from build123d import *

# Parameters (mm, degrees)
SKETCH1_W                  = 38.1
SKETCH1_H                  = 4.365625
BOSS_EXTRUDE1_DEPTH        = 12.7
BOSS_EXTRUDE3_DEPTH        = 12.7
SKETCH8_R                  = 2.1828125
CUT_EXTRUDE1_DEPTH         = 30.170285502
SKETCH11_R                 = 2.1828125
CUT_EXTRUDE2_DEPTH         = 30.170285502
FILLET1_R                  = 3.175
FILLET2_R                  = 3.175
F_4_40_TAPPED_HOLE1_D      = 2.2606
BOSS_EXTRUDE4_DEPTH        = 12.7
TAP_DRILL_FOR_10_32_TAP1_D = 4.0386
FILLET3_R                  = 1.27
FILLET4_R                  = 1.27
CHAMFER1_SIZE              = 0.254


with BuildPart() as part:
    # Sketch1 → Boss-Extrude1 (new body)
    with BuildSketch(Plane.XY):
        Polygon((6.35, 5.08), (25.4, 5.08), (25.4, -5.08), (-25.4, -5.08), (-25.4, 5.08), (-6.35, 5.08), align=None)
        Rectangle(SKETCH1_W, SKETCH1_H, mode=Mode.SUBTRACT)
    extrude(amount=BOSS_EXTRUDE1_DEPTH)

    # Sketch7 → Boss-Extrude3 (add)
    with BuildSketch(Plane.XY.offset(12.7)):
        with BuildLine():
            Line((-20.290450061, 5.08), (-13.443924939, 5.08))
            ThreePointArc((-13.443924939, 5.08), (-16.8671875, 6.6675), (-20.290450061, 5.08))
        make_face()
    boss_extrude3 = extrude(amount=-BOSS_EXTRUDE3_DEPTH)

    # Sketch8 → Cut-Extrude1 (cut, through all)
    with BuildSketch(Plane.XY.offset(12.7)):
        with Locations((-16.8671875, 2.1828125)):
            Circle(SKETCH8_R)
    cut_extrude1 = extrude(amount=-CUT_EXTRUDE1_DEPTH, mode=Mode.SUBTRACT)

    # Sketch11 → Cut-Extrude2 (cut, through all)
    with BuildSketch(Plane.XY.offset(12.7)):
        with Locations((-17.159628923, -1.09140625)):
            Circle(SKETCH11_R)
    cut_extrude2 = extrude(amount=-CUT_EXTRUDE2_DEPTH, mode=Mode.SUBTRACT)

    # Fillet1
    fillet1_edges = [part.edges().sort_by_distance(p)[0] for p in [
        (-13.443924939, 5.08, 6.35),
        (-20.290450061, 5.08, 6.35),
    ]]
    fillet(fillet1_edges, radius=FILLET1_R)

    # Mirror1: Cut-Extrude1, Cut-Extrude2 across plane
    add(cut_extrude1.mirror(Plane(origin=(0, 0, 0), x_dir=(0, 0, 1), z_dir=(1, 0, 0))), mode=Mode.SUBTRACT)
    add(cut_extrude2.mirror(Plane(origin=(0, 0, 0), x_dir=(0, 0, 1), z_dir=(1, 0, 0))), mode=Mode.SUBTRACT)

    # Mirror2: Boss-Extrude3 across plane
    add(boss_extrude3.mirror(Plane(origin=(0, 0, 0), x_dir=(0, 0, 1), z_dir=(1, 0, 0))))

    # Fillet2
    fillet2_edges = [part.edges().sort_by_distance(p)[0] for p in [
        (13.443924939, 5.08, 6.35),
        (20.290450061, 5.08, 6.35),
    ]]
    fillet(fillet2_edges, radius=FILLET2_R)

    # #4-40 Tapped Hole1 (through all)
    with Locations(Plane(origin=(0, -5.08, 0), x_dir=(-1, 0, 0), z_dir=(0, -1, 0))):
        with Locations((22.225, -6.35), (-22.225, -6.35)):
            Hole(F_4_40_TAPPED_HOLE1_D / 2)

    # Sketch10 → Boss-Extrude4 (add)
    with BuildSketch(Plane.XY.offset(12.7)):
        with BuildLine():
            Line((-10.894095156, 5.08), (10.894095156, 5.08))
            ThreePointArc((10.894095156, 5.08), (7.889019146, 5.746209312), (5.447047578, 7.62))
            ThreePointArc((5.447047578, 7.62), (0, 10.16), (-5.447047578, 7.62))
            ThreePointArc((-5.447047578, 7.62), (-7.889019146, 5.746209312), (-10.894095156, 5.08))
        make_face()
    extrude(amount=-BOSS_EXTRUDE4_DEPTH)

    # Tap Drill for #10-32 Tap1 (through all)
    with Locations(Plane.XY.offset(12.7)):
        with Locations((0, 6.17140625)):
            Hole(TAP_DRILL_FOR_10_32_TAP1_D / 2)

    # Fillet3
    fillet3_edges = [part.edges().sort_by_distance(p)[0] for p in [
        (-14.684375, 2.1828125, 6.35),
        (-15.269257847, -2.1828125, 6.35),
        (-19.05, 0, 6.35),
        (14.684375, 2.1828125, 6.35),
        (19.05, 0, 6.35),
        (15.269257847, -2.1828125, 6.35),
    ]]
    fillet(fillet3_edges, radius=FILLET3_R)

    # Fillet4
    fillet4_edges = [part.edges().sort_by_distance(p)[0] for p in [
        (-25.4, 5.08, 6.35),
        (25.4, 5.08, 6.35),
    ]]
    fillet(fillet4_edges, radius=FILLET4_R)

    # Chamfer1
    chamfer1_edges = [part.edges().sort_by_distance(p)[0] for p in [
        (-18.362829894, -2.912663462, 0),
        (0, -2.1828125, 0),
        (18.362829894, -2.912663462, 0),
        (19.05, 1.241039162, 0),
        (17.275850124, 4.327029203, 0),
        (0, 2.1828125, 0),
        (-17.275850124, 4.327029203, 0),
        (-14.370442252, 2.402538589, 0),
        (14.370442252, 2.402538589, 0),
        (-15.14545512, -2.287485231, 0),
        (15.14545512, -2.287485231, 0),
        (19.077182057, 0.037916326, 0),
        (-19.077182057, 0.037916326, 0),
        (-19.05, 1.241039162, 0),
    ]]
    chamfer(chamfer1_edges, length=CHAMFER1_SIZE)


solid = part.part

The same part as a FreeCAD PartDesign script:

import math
import FreeCAD as App
import Part
import Sketcher
from FreeCAD import Vector
Q = App.Units.Quantity


def edges_at(feature, points):
    """Names of the edges that pass closest to the given points."""
    edges = feature.Shape.Edges
    near = lambda p: min(range(len(edges)), key=lambda i: edges[i].distToShape(Part.Vertex(*p))[0])
    return sorted({f"Edge{near(p) + 1}" for p in points})

doc = App.newDocument("Part")
body = doc.addObject("PartDesign::Body", "Body")

# Sketch on XY plane
sketch1 = body.newObject("Sketcher::SketchObject", "Sketch")
sketch1.AttachmentSupport = (doc.getObject("XY_Plane"), [""])
sketch1.MapMode = "FlatFace"
sketch1.addGeometry(Part.LineSegment(Vector(25.4, 5.08, 0), Vector(-25.4, 5.08, 0)), False)
sketch1.addGeometry(Part.LineSegment(Vector(-25.4, 5.08, 0), Vector(-25.4, -5.08, 0)), False)
sketch1.addGeometry(Part.LineSegment(Vector(-25.4, -5.08, 0), Vector(25.4, -5.08, 0)), False)
sketch1.addGeometry(Part.LineSegment(Vector(25.4, -5.08, 0), Vector(25.4, 5.08, 0)), False)
sketch1.addGeometry(Part.LineSegment(Vector(-19.05, -2.182812, 0), Vector(-19.05, 2.182812, 0)), False)
sketch1.addGeometry(Part.LineSegment(Vector(-19.05, 2.182812, 0), Vector(19.05, 2.182812, 0)), False)
sketch1.addGeometry(Part.LineSegment(Vector(19.05, 2.182812, 0), Vector(19.05, -2.182812, 0)), False)
sketch1.addGeometry(Part.LineSegment(Vector(19.05, -2.182812, 0), Vector(-19.05, -2.182812, 0)), False)
sketch1.addConstraint(Sketcher.Constraint("Coincident", 0, 2, 1, 1))
sketch1.addConstraint(Sketcher.Constraint("Coincident", 1, 2, 2, 1))
sketch1.addConstraint(Sketcher.Constraint("Coincident", 2, 2, 3, 1))
sketch1.addConstraint(Sketcher.Constraint("Coincident", 3, 2, 0, 1))
sketch1.addConstraint(Sketcher.Constraint("Coincident", 4, 2, 5, 1))
sketch1.addConstraint(Sketcher.Constraint("Coincident", 5, 2, 6, 1))
sketch1.addConstraint(Sketcher.Constraint("Coincident", 6, 2, 7, 1))
sketch1.addConstraint(Sketcher.Constraint("Coincident", 7, 2, 4, 1))
sketch1.addConstraint(Sketcher.Constraint("Horizontal", 0))
sketch1.addConstraint(Sketcher.Constraint("Vertical", 1))
sketch1.addConstraint(Sketcher.Constraint("Horizontal", 2))
sketch1.addConstraint(Sketcher.Constraint("Vertical", 3))
sketch1.addConstraint(Sketcher.Constraint("Vertical", 4))
sketch1.addConstraint(Sketcher.Constraint("Horizontal", 5))
sketch1.addConstraint(Sketcher.Constraint("Vertical", 6))
sketch1.addConstraint(Sketcher.Constraint("Horizontal", 7))
sketch1.addConstraint(Sketcher.Constraint("Symmetric", 0, 2, 2, 2, -1, 1))
sketch1.addConstraint(Sketcher.Constraint("Symmetric", 4, 2, 6, 2, -1, 1))
sketch1.addConstraint(Sketcher.Constraint("DistanceX", 0, 2, 0, 1, Q("2 in")))
sketch1.addConstraint(Sketcher.Constraint("DistanceX", 5, 1, 5, 2, Q("1.5 in")))
sketch1.addConstraint(Sketcher.Constraint("DistanceY", 1, 2, 1, 1, Q("0.4 in")))
sketch1.addConstraint(Sketcher.Constraint("DistanceY", 4, 1, 4, 2, Q("0.171875 in")))
pad1 = body.newObject("PartDesign::Pad", "Pad")
pad1.Profile = sketch1
pad1.Length = Q("0.5 in")

# Sketch on XY plane
sketch2 = body.newObject("Sketcher::SketchObject", "Sketch001")
sketch2.AttachmentSupport = (doc.getObject("XY_Plane"), [""])
sketch2.MapMode = "FlatFace"
sketch2.AttachmentOffset = App.Placement(Vector(0, 0, 0.5 * 25.4), App.Rotation())
sketch2.addGeometry(Part.LineSegment(Vector(-20.29045, 5.08, 0), Vector(-13.443925, 5.08, 0)), False)
sketch2.addGeometry(Part.ArcOfCircle(Part.Circle(Vector(-16.867188, 2.182812, 0), Vector(0, 0, 1), 4.484687), math.radians(40.242022), math.radians(139.757978)), False)
sketch2.addConstraint(Sketcher.Constraint("Coincident", 0, 1, 1, 2))
sketch2.addConstraint(Sketcher.Constraint("Coincident", 1, 1, 0, 2))
sketch2.addConstraint(Sketcher.Constraint("Horizontal", 0))
sketch2.addConstraint(Sketcher.Constraint("DistanceY", -1, 1, 0, 1, Q("0.2 in")))
sketch2.addConstraint(Sketcher.Constraint("Radius", 1, Q("4.484687 mm")))
sketch2.addConstraint(Sketcher.Constraint("DistanceX", 0, 1, 0, 2, Q("6.846525 mm")))
sketch2.addConstraint(Sketcher.Constraint("DistanceX", 0, 1, -1, 1, Q("20.29045 mm")))
pad2 = body.newObject("PartDesign::Pad", "Pad001")
pad2.Profile = sketch2
pad2.Length = Q("0.5 in")
pad2.Reversed = True

# Sketch on XY plane
sketch3 = body.newObject("Sketcher::SketchObject", "Sketch002")
sketch3.AttachmentSupport = (doc.getObject("XY_Plane"), [""])
sketch3.MapMode = "FlatFace"
sketch3.AttachmentOffset = App.Placement(Vector(0, 0, 0.5 * 25.4), App.Rotation())
sketch3.addGeometry(Part.Circle(Vector(-16.867188, 2.182812, 0), Vector(0, 0, 1), 2.182812), False)
sketch3.addConstraint(Sketcher.Constraint("Diameter", 0, Q("0.171875 in")))
sketch3.addConstraint(Sketcher.Constraint("DistanceX", 0, 3, -1, 1, Q("16.867188 mm")))
sketch3.addConstraint(Sketcher.Constraint("DistanceY", -1, 1, 0, 3, Q("2.182812 mm")))
pocket1 = body.newObject("PartDesign::Pocket", "Pocket")
pocket1.Profile = sketch3
pocket1.Type = "ThroughAll"

# Sketch on XY plane
sketch4 = body.newObject("Sketcher::SketchObject", "Sketch003")
sketch4.AttachmentSupport = (doc.getObject("XY_Plane"), [""])
sketch4.MapMode = "FlatFace"
sketch4.AttachmentOffset = App.Placement(Vector(0, 0, 0.5 * 25.4), App.Rotation())
sketch4.addGeometry(Part.Circle(Vector(-17.159629, -1.091406, 0), Vector(0, 0, 1), 2.182812), False)
sketch4.addConstraint(Sketcher.Constraint("Diameter", 0, Q("0.171875 in")))
sketch4.addConstraint(Sketcher.Constraint("DistanceX", 0, 3, -1, 1, Q("17.159629 mm")))
sketch4.addConstraint(Sketcher.Constraint("DistanceY", 0, 3, -1, 1, Q("1.091406 mm")))
pocket2 = body.newObject("PartDesign::Pocket", "Pocket001")
pocket2.Profile = sketch4
pocket2.Type = "ThroughAll"
doc.recompute()

fillet = body.newObject("PartDesign::Fillet", "Fillet")
fillet.Base = (pocket2, edges_at(pocket2, [(-13.444, 5.08, 6.35), (-20.29, 5.08, 6.35)]))
fillet.Radius = Q("0.125 in")
doc.recompute()

mirrored = body.newObject("PartDesign::Mirrored", "Mirrored")
mirrored.Originals = [pocket1, pocket2]
mirrored.MirrorPlane = (doc.getObject("YZ_Plane"), [""])
body.Tip = mirrored
doc.recompute()

mirrored2 = body.newObject("PartDesign::Mirrored", "Mirrored001")
mirrored2.Originals = [pad2]
mirrored2.MirrorPlane = (doc.getObject("YZ_Plane"), [""])
body.Tip = mirrored2
doc.recompute()

fillet2 = body.newObject("PartDesign::Fillet", "Fillet001")
fillet2.Base = (mirrored2, edges_at(mirrored2, [(13.444, 5.08, 6.35), (20.29, 5.08, 6.35)]))
fillet2.Radius = Q("0.125 in")

# Sketch on XZ plane
sketch5 = body.newObject("Sketcher::SketchObject", "Sketch004")
sketch5.AttachmentSupport = (doc.getObject("XZ_Plane"), [""])
sketch5.MapMode = "FlatFace"
sketch5.AttachmentOffset = App.Placement(Vector(0, 0, 0.2 * 25.4), App.Rotation())
sketch5.addGeometry(Part.Circle(Vector(-22.225, 6.35, 0), Vector(0, 0, 1), 1.1303), False)
sketch5.addGeometry(Part.Circle(Vector(22.225, 6.35, 0), Vector(0, 0, 1), 1.1303), False)
sketch5.addConstraint(Sketcher.Constraint("Equal", 0, 1))
sketch5.addConstraint(Sketcher.Constraint("Symmetric", 0, 3, 1, 3, -2))
sketch5.addConstraint(Sketcher.Constraint("Diameter", 0, Q("0.089 in")))
sketch5.addConstraint(Sketcher.Constraint("DistanceY", -1, 1, 0, 3, Q("0.25 in")))
sketch5.addConstraint(Sketcher.Constraint("DistanceX", 0, 3, 1, 3, Q("1.75 in")))
doc.recompute()
hole = body.newObject("PartDesign::Hole", "Hole")
hole.Profile = sketch5
hole.ThreadType = "None"
hole.Diameter = Q("0.089 in")
hole.DepthType = "ThroughAll"

# Sketch on XY plane
sketch6 = body.newObject("Sketcher::SketchObject", "Sketch005")
sketch6.AttachmentSupport = (doc.getObject("XY_Plane"), [""])
sketch6.MapMode = "FlatFace"
sketch6.AttachmentOffset = App.Placement(Vector(0, 0, 0.5 * 25.4), App.Rotation())
sketch6.addGeometry(Part.LineSegment(Vector(-10.894095, 5.08, 0), Vector(10.894095, 5.08, 0)), False)
sketch6.addGeometry(Part.ArcOfCircle(Part.Circle(Vector(10.894095, 12.190616, 0), Vector(0, 0, 1), 7.110616), math.radians(-140), math.radians(-90)), False)
sketch6.addGeometry(Part.ArcOfCircle(Part.Circle(Vector(0, 3.049384, 0), Vector(0, 0, 1), 7.110616), math.radians(40), math.radians(140)), False)
sketch6.addGeometry(Part.ArcOfCircle(Part.Circle(Vector(-10.894095, 12.190616, 0), Vector(0, 0, 1), 7.110616), math.radians(-90), math.radians(-40)), False)
sketch6.addConstraint(Sketcher.Constraint("Tangent", 0, 2, 1, 2))
sketch6.addConstraint(Sketcher.Constraint("Tangent", 1, 1, 2, 1))
sketch6.addConstraint(Sketcher.Constraint("Tangent", 2, 2, 3, 2))
sketch6.addConstraint(Sketcher.Constraint("Tangent", 3, 1, 0, 1))
sketch6.addConstraint(Sketcher.Constraint("Horizontal", 0))
sketch6.addConstraint(Sketcher.Constraint("Equal", 1, 2))
sketch6.addConstraint(Sketcher.Constraint("Equal", 2, 3))
sketch6.addConstraint(Sketcher.Constraint("PointOnObject", 2, 3, -2))
sketch6.addConstraint(Sketcher.Constraint("DistanceY", -1, 1, 0, 2, Q("0.2 in")))
sketch6.addConstraint(Sketcher.Constraint("DistanceY", -1, 1, 1, 1, Q("0.3 in")))
sketch6.addConstraint(Sketcher.Constraint("Radius", 1, Q("7.110616 mm")))
pad3 = body.newObject("PartDesign::Pad", "Pad002")
pad3.Profile = sketch6
pad3.Length = Q("0.5 in")
pad3.Reversed = True

# Sketch on XY plane
sketch7 = body.newObject("Sketcher::SketchObject", "Sketch006")
sketch7.AttachmentSupport = (doc.getObject("XY_Plane"), [""])
sketch7.MapMode = "FlatFace"
sketch7.AttachmentOffset = App.Placement(Vector(0, 0, 0.5 * 25.4), App.Rotation())
sketch7.addGeometry(Part.Circle(Vector(0, 6.171406, 0), Vector(0, 0, 1), 2.0193), False)
sketch7.addConstraint(Sketcher.Constraint("PointOnObject", 0, 3, -2))
sketch7.addConstraint(Sketcher.Constraint("Diameter", 0, Q("0.159 in")))
sketch7.addConstraint(Sketcher.Constraint("DistanceY", -1, 1, 0, 3, Q("6.171406 mm")))
doc.recompute()
hole2 = body.newObject("PartDesign::Hole", "Hole001")
hole2.Profile = sketch7
hole2.ThreadType = "None"
hole2.Diameter = Q("0.159 in")
hole2.DepthType = "ThroughAll"
doc.recompute()

fillet3 = body.newObject("PartDesign::Fillet", "Fillet002")
fillet3.Base = (hole2, edges_at(hole2, [
    (-14.684, 2.183, 6.35),
    (-15.269, -2.183, 6.35),
    (-19.05, 0, 6.35),
    (14.684, 2.183, 6.35),
    (19.05, 0, 6.35),
    (15.269, -2.183, 6.35),
]))
fillet3.Radius = Q("0.05 in")
doc.recompute()

fillet4 = body.newObject("PartDesign::Fillet", "Fillet003")
fillet4.Base = (fillet3, edges_at(fillet3, [(-25.4, 5.08, 6.35), (25.4, 5.08, 6.35)]))
fillet4.Radius = Q("0.05 in")
doc.recompute()

chamfer = body.newObject("PartDesign::Chamfer", "Chamfer")
chamfer.Base = (fillet4, edges_at(fillet4, [
    (-18.363, -2.913, 0),
    (0, -2.183, 0),
    (18.363, -2.913, 0),
    (19.05, 1.241, 0),
    (17.276, 4.327, 0),
    (0, 2.183, 0),
    (-17.276, 4.327, 0),
    (-14.37, 2.403, 0),
    (14.37, 2.403, 0),
    (-15.145, -2.287, 0),
    (15.145, -2.287, 0),
    (19.077, 0.038, 0),
    (-19.077, 0.038, 0),
    (-19.05, 1.241, 0),
]))
chamfer.Size = Q("0.01 in")

doc.recompute()
